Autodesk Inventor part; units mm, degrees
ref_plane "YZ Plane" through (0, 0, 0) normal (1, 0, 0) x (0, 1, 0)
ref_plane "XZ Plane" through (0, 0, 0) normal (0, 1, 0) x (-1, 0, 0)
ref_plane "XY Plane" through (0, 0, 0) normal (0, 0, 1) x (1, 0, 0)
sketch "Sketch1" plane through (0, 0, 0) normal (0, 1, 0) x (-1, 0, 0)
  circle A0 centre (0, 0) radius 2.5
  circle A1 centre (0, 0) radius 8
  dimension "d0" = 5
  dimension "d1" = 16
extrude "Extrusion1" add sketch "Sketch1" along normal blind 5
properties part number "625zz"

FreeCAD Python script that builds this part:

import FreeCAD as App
import Part
import Sketcher

doc = App.newDocument("Part")
body = doc.addObject("PartDesign::Body", "Body")

# Sketch on XZ plane
sketch1 = body.newObject("Sketcher::SketchObject", "Sketch")
sketch1.AttachmentSupport = (doc.getObject("XZ_Plane"), [""])
sketch1.MapMode = "FlatFace"
sketch1.addGeometry([
    Part.Circle(App.Vector(0, 0, 0), App.Vector(0, 0, 1), 8),
    Part.Circle(App.Vector(0, 0, 0), App.Vector(0, 0, 1), 2.5),
], False)
sketch1.addConstraint([
    Sketcher.Constraint("Coincident", 0, 3, -1, 1),
    Sketcher.Constraint("Coincident", 1, 3, -1, 1),
    Sketcher.Constraint("Diameter", 0, 16.0),
    Sketcher.Constraint("Diameter", 1, 5.0),
])
pad1 = body.newObject("PartDesign::Pad", "Pad")
pad1.Profile = sketch1
pad1.Length = 5
pad1.Reversed = True

doc.recompute()
